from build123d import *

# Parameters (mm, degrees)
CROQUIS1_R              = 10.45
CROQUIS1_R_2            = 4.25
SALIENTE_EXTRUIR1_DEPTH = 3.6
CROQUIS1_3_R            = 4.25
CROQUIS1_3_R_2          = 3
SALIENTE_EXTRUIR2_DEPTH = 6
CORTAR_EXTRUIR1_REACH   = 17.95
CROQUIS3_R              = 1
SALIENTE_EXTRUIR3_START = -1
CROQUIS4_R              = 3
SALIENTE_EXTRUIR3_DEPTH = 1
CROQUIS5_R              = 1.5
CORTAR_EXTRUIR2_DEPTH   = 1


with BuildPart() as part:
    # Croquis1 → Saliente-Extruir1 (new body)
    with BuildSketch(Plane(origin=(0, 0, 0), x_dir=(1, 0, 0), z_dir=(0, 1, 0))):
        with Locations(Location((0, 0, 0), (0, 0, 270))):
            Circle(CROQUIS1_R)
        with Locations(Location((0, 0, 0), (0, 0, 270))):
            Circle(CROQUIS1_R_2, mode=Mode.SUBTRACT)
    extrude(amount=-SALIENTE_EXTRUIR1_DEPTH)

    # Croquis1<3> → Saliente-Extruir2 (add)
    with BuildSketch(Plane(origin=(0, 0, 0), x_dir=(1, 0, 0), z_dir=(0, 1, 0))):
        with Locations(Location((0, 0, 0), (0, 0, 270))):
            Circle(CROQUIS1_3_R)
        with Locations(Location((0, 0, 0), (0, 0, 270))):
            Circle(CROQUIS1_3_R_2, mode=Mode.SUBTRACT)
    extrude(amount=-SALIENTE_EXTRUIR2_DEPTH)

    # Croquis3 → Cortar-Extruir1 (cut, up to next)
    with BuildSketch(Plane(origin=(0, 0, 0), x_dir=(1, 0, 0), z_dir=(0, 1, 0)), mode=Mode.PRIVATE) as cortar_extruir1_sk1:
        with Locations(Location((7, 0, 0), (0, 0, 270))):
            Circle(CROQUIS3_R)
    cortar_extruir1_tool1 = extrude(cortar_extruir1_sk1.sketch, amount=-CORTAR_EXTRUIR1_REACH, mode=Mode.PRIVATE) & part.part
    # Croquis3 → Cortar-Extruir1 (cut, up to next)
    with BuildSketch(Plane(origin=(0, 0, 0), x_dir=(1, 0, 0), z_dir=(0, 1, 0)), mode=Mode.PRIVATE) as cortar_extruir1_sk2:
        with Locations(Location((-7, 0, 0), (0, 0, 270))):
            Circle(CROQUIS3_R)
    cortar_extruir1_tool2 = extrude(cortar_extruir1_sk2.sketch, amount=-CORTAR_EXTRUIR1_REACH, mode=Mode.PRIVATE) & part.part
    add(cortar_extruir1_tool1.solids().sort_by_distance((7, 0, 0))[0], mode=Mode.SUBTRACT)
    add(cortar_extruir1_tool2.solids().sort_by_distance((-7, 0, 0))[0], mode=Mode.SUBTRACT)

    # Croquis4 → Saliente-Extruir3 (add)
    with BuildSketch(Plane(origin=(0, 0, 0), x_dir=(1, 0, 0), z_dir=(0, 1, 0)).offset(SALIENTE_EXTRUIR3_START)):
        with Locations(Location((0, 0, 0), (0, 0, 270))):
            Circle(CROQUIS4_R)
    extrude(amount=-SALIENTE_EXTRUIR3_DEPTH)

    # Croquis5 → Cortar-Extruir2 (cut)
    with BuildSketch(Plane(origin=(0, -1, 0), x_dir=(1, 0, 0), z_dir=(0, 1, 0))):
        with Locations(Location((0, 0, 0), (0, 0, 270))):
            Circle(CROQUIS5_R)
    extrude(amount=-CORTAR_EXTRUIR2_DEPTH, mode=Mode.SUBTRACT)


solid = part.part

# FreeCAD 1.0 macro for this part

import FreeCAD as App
import Part
import Sketcher
from FreeCAD import Vector

doc = App.newDocument("Part")
body = doc.addObject("PartDesign::Body", "Body")

sketch1 = body.newObject("Sketcher::SketchObject", "Sketch")
sketch1.AttachmentSupport = (doc.getObject("XZ_Plane"), [""])
sketch1.MapMode = "FlatFace"
sketch1.addGeometry(Part.Circle(Vector(0, 0, 0), Vector(0, 0, 1), 10.4), False)
sketch1.addGeometry(Part.Circle(Vector(0, 0, 0), Vector(0, 0, 1), 4.2), False)
sketch1.addConstraint(Sketcher.Constraint("Coincident", 0, 3, -1, 1))
sketch1.addConstraint(Sketcher.Constraint("Coincident", 1, 3, -1, 1))
sketch1.addConstraint(Sketcher.Constraint("Diameter", 0, 20.9))
sketch1.addConstraint(Sketcher.Constraint("Diameter", 1, 8.5))
pad1 = body.newObject("PartDesign::Pad", "Pad")
pad1.Profile = sketch1
pad1.Length = 3.6

sketch2 = body.newObject("Sketcher::SketchObject", "Sketch001")
sketch2.AttachmentSupport = (doc.getObject("XZ_Plane"), [""])
sketch2.MapMode = "FlatFace"
sketch2.addGeometry(Part.Circle(Vector(0, 0, 0), Vector(0, 0, 1), 4.2), False)
sketch2.addGeometry(Part.Circle(Vector(0, 0, 0), Vector(0, 0, 1), 3), False)
sketch2.addConstraint(Sketcher.Constraint("Coincident", 0, 3, -1, 1))
sketch2.addConstraint(Sketcher.Constraint("Coincident", 1, 3, -1, 1))
sketch2.addConstraint(Sketcher.Constraint("Diameter", 1, 6.0))
sketch2.addConstraint(Sketcher.Constraint("Diameter", 0, 8.5))
pad2 = body.newObject("PartDesign::Pad", "Pad001")
pad2.Profile = sketch2
pad2.Length = 6

sketch3 = body.newObject("Sketcher::SketchObject", "Sketch002")
sketch3.AttachmentSupport = (doc.getObject("XZ_Plane"), [""])
sketch3.MapMode = "FlatFace"
sketch3.addGeometry(Part.Circle(Vector(7, 0, 0), Vector(0, 0, 1), 1), False)
sketch3.addConstraint(Sketcher.Constraint("PointOnObject", 0, 3, -1))
sketch3.addConstraint(Sketcher.Constraint("Diameter", 0, 2.0))
sketch3.addConstraint(Sketcher.Constraint("DistanceX", -1, 1, 0, 3, 7.0))
pocket1 = body.newObject("PartDesign::Pocket", "Pocket")
pocket1.Profile = sketch3
pocket1.Type = "UpToFirst"
pocket1.Reversed = True

sketch4 = body.newObject("Sketcher::SketchObject", "Sketch003")
sketch4.AttachmentSupport = (doc.getObject("XZ_Plane"), [""])
sketch4.MapMode = "FlatFace"
sketch4.addGeometry(Part.Circle(Vector(-7, 0, 0), Vector(0, 0, 1), 1), False)
sketch4.addConstraint(Sketcher.Constraint("PointOnObject", 0, 3, -1))
sketch4.addConstraint(Sketcher.Constraint("Diameter", 0, 2.0))
sketch4.addConstraint(Sketcher.Constraint("DistanceX", 0, 3, -1, 1, 7.0))
pocket2 = body.newObject("PartDesign::Pocket", "Pocket001")
pocket2.Profile = sketch4
pocket2.Type = "UpToFirst"
pocket2.Reversed = True

sketch5 = body.newObject("Sketcher::SketchObject", "Sketch004")
sketch5.AttachmentSupport = (doc.getObject("XZ_Plane"), [""])
sketch5.MapMode = "FlatFace"
sketch5.AttachmentOffset = App.Placement(Vector(0, 0, 1), App.Rotation())
sketch5.addGeometry(Part.Circle(Vector(0, 0, 0), Vector(0, 0, 1), 3), False)
sketch5.addConstraint(Sketcher.Constraint("Coincident", 0, 3, -1, 1))
sketch5.addConstraint(Sketcher.Constraint("Diameter", 0, 6.0))
pad3 = body.newObject("PartDesign::Pad", "Pad002")
pad3.Profile = sketch5
pad3.Length = 1

sketch6 = body.newObject("Sketcher::SketchObject", "Sketch005")
sketch6.AttachmentSupport = (doc.getObject("XZ_Plane"), [""])
sketch6.MapMode = "FlatFace"
sketch6.AttachmentOffset = App.Placement(Vector(0, 0, 1), App.Rotation())
sketch6.addGeometry(Part.Circle(Vector(0, 0, 0), Vector(0, 0, 1), 1.5), False)
sketch6.addConstraint(Sketcher.Constraint("Coincident", 0, 3, -1, 1))
sketch6.addConstraint(Sketcher.Constraint("Diameter", 0, 3.0))
pocket3 = body.newObject("PartDesign::Pocket", "Pocket002")
pocket3.Profile = sketch6
pocket3.Length = 1
pocket3.Reversed = True

doc.recompute()
